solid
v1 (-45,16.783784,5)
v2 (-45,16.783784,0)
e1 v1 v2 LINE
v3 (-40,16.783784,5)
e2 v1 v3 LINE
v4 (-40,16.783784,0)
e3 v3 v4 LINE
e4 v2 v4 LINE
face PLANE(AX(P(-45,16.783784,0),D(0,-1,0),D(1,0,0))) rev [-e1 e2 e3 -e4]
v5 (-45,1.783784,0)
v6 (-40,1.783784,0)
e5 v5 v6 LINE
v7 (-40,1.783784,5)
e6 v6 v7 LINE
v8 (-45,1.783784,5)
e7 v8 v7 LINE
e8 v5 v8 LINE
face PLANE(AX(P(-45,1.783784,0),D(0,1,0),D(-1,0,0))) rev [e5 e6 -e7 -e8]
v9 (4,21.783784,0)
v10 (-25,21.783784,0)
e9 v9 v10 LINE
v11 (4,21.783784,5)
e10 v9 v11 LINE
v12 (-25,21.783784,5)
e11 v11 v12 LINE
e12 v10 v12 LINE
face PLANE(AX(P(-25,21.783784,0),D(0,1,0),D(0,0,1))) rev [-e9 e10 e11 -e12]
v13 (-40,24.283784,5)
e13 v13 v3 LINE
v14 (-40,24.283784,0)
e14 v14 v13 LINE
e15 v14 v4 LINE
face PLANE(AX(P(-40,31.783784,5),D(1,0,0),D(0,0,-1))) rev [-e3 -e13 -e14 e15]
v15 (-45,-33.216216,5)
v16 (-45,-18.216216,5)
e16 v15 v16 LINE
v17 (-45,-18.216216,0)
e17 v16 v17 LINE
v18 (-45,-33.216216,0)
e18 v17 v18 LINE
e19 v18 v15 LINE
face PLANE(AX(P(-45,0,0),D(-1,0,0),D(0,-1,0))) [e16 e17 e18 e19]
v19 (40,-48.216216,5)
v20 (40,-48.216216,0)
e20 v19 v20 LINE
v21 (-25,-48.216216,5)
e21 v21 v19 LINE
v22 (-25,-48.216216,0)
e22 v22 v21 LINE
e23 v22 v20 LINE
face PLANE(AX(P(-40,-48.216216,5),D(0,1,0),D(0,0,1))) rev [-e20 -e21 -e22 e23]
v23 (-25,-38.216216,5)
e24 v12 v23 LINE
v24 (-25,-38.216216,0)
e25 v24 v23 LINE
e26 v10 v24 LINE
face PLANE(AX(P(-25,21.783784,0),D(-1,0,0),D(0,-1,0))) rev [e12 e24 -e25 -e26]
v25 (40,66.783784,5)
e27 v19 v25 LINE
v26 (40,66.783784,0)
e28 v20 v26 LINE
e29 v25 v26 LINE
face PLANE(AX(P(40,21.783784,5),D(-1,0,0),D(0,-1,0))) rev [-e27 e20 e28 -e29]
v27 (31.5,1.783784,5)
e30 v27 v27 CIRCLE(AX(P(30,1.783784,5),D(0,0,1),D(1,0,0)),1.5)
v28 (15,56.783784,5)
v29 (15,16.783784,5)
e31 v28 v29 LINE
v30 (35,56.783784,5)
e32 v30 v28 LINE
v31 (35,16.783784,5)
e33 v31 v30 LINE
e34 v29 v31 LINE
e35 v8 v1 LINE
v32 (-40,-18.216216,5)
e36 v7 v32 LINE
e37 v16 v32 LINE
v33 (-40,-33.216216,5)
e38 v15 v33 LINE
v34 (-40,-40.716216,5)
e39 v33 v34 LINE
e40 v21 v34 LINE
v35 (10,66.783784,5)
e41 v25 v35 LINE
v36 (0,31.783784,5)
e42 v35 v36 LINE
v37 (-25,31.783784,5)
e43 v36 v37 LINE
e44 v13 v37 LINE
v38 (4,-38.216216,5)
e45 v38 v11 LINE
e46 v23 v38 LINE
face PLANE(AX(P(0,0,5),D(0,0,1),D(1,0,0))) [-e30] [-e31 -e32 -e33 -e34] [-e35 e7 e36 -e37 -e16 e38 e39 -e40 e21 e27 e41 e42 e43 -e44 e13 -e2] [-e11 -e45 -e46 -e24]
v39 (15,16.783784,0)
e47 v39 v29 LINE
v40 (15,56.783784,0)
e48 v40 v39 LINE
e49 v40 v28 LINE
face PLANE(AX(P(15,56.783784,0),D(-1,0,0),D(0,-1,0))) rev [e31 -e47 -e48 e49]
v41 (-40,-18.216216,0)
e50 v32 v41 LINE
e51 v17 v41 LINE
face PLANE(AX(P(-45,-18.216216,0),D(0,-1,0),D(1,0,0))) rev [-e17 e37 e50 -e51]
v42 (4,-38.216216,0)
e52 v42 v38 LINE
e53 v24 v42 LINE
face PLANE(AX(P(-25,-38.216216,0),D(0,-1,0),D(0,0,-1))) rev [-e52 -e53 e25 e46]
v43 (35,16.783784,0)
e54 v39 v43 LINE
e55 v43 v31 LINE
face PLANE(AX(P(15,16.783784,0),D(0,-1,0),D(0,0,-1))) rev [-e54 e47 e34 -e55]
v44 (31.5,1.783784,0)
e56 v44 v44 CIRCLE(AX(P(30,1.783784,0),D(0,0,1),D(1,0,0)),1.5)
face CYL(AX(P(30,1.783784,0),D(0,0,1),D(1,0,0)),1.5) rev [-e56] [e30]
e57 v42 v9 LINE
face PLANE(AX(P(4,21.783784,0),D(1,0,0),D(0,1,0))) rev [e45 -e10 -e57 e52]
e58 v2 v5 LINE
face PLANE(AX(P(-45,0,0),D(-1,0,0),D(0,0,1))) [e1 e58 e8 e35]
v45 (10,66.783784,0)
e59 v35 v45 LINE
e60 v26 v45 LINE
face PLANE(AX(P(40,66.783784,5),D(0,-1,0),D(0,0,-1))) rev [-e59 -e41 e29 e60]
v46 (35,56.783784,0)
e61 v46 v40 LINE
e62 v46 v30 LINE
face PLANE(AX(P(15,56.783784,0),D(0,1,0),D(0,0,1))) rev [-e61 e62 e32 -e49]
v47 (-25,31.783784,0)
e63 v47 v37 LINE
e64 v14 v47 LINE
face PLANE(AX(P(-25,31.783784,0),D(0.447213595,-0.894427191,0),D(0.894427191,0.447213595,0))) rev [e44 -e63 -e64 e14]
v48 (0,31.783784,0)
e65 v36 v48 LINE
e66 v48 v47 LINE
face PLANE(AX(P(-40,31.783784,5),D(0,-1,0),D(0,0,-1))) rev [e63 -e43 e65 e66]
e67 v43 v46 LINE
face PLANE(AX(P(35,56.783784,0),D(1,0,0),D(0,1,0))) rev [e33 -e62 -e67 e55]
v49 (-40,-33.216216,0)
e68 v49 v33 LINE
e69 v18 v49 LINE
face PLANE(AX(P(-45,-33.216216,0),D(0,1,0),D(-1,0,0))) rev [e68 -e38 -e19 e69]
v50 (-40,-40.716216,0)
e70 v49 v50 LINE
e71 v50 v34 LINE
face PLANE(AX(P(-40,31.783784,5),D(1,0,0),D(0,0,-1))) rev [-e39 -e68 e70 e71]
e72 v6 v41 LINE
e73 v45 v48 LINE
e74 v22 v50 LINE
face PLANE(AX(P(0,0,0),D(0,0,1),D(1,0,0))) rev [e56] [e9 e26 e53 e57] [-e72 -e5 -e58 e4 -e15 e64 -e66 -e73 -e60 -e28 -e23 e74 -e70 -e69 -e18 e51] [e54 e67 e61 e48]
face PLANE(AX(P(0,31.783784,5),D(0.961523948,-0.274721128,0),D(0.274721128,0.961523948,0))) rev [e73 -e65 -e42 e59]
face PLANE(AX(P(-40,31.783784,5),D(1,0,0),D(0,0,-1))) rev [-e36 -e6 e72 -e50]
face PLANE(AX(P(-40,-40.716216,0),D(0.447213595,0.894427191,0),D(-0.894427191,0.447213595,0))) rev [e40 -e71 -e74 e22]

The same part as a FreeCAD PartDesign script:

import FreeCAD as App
import Part
import Sketcher
from FreeCAD import Vector

doc = App.newDocument("Part")
params = doc.addObject("Spreadsheet::Sheet", "Params")
for row, (alias, value) in enumerate([
    ("sketch1_width", "40 mm"),
    ("sketch1_width2", "80 mm"),
    ("sketch1_width3", "30 mm"),
    ("sketch1_height", "115 mm"),
    ("pad1_length", "5 mm"),
    ("sketch2_width", "29 mm"),
    ("sketch2_width2", "20 mm"),
    ("sketch2_height", "60 mm"),
    ("sketch2_height2", "40 mm"),
    ("pocket1_length", "5 mm"),
    ("sketch3_width", "15 mm"),
    ("sketch3_height", "5 mm"),
    ("pad2_length", "5 mm"),
    ("sketch4_width", "15 mm"),
    ("sketch4_height", "7.5 mm"),
    ("pocket2_length", "5 mm"),
    ("sketch5_diameter", "3 mm"),
    ("pocket3_length", "5 mm"),
], start=1):
    params.set(f"A{row}", alias)
    params.set(f"B{row}", "=" + value)
    params.setAlias(f"B{row}", alias)

body = doc.addObject("PartDesign::Body", "Body")

sketch1 = doc.addObject("Sketcher::SketchObject", "Sketch")
body.addObject(sketch1)
sketch1.AttachmentSupport = (doc.XY_Plane, [""])
sketch1.MapMode = "FlatFace"
sketch1.addGeometry([
    Part.LineSegment(Vector(10, 67, 0), Vector(0, 32, 0)),
    Part.LineSegment(Vector(0, 32, 0), Vector(-40, 32, 0)),
    Part.LineSegment(Vector(-40, 32, 0), Vector(-40, -48, 0)),
    Part.LineSegment(Vector(-40, -48, 0), Vector(40, -48, 0)),
    Part.LineSegment(Vector(40, -48, 0), Vector(40, 67, 0)),
    Part.LineSegment(Vector(40, 67, 0), Vector(10, 67, 0)),
], False)
sketch1.addConstraint([
    Sketcher.Constraint("Coincident", 0, 2, 1, 1),
    Sketcher.Constraint("Coincident", 1, 2, 2, 1),
    Sketcher.Constraint("Coincident", 2, 2, 3, 1),
    Sketcher.Constraint("Coincident", 3, 2, 4, 1),
    Sketcher.Constraint("Coincident", 4, 2, 5, 1),
    Sketcher.Constraint("Coincident", 5, 2, 0, 1),
    Sketcher.Constraint("Horizontal", 1),
    Sketcher.Constraint("Vertical", 2),
    Sketcher.Constraint("Horizontal", 3),
    Sketcher.Constraint("Vertical", 4),
    Sketcher.Constraint("Horizontal", 5),
    Sketcher.Constraint("PointOnObject", 0, 2, -2),
    Sketcher.Constraint("Equal", 3, 2),
    Sketcher.Constraint("DistanceX", 1, 2, 1, 1, 40.0),
    Sketcher.Constraint("DistanceX", 3, 1, 3, 2, 80.0),
    Sketcher.Constraint("DistanceX", 5, 2, 5, 1, 30.0),
    Sketcher.Constraint("DistanceY", 4, 1, 4, 2, 115.0),
    Sketcher.Constraint("DistanceY", -1, 1, 0, 2, 31.783784),
])
sketch1.setExpression("Constraints[13]", "Params.sketch1_width")
sketch1.setExpression("Constraints[14]", "Params.sketch1_width2")
sketch1.setExpression("Constraints[15]", "Params.sketch1_width3")
sketch1.setExpression("Constraints[16]", "Params.sketch1_height")
pad1 = doc.addObject("PartDesign::Pad", "Pad")
body.addObject(pad1)
pad1.Profile = sketch1
pad1.setExpression("Length", "Params.pad1_length")

sketch2 = doc.addObject("Sketcher::SketchObject", "Sketch001")
body.addObject(sketch2)
sketch2.AttachmentSupport = (doc.XY_Plane, [""])
sketch2.MapMode = "FlatFace"
sketch2.AttachmentOffset = App.Placement(Vector(0, 0, 5), App.Rotation())
sketch2.addGeometry([
    Part.LineSegment(Vector(-25, 22, 0), Vector(-25, -38, 0)),
    Part.LineSegment(Vector(-25, -38, 0), Vector(4, -38, 0)),
    Part.LineSegment(Vector(4, -38, 0), Vector(4, 22, 0)),
    Part.LineSegment(Vector(4, 22, 0), Vector(-25, 22, 0)),
    Part.LineSegment(Vector(15, 57, 0), Vector(15, 17, 0)),
    Part.LineSegment(Vector(15, 17, 0), Vector(35, 17, 0)),
    Part.LineSegment(Vector(35, 17, 0), Vector(35, 57, 0)),
    Part.LineSegment(Vector(35, 57, 0), Vector(15, 57, 0)),
], False)
sketch2.addConstraint([
    Sketcher.Constraint("Coincident", 0, 2, 1, 1),
    Sketcher.Constraint("Coincident", 1, 2, 2, 1),
    Sketcher.Constraint("Coincident", 2, 2, 3, 1),
    Sketcher.Constraint("Coincident", 3, 2, 0, 1),
    Sketcher.Constraint("Coincident", 4, 2, 5, 1),
    Sketcher.Constraint("Coincident", 5, 2, 6, 1),
    Sketcher.Constraint("Coincident", 6, 2, 7, 1),
    Sketcher.Constraint("Coincident", 7, 2, 4, 1),
    Sketcher.Constraint("Vertical", 0),
    Sketcher.Constraint("Horizontal", 1),
    Sketcher.Constraint("Vertical", 2),
    Sketcher.Constraint("Horizontal", 3),
    Sketcher.Constraint("Vertical", 4),
    Sketcher.Constraint("Horizontal", 5),
    Sketcher.Constraint("Vertical", 6),
    Sketcher.Constraint("Horizontal", 7),
    Sketcher.Constraint("DistanceX", 1, 1, 1, 2, 29.0),
    Sketcher.Constraint("DistanceX", 5, 1, 5, 2, 20.0),
    Sketcher.Constraint("DistanceY", 0, 2, 0, 1, 60.0),
    Sketcher.Constraint("DistanceY", 4, 2, 4, 1, 40.0),
    Sketcher.Constraint("DistanceX", 0, 2, -1, 1, 25.0),
    Sketcher.Constraint("DistanceX", -1, 1, 4, 2, 15.0),
    Sketcher.Constraint("DistanceY", 4, 2, 2, 2, 5.0),
    Sketcher.Constraint("DistanceY", 0, 2, -1, 1, 38.216216),
])
sketch2.setExpression("Constraints[16]", "Params.sketch2_width")
sketch2.setExpression("Constraints[17]", "Params.sketch2_width2")
sketch2.setExpression("Constraints[18]", "Params.sketch2_height")
sketch2.setExpression("Constraints[19]", "Params.sketch2_height2")
pocket1 = doc.addObject("PartDesign::Pocket", "Pocket")
body.addObject(pocket1)
pocket1.Profile = sketch2
pocket1.setExpression("Length", "Params.pocket1_length")

sketch3 = doc.addObject("Sketcher::SketchObject", "Sketch002")
body.addObject(sketch3)
sketch3.AttachmentSupport = (doc.YZ_Plane, [""])
sketch3.MapMode = "FlatFace"
sketch3.AttachmentOffset = App.Placement(Vector(0, 0, -40), App.Rotation())
sketch3.addGeometry([
    Part.LineSegment(Vector(17, 0, 0), Vector(2, 0, 0)),
    Part.LineSegment(Vector(2, 0, 0), Vector(2, 5, 0)),
    Part.LineSegment(Vector(2, 5, 0), Vector(17, 5, 0)),
    Part.LineSegment(Vector(17, 5, 0), Vector(17, 0, 0)),
    Part.LineSegment(Vector(-18, 0, 0), Vector(-33, 0, 0)),
    Part.LineSegment(Vector(-33, 0, 0), Vector(-33, 5, 0)),
    Part.LineSegment(Vector(-33, 5, 0), Vector(-18, 5, 0)),
    Part.LineSegment(Vector(-18, 5, 0), Vector(-18, 0, 0)),
], False)
sketch3.addConstraint([
    Sketcher.Constraint("Coincident", 0, 2, 1, 1),
    Sketcher.Constraint("Coincident", 1, 2, 2, 1),
    Sketcher.Constraint("Coincident", 2, 2, 3, 1),
    Sketcher.Constraint("Coincident", 3, 2, 0, 1),
    Sketcher.Constraint("Coincident", 4, 2, 5, 1),
    Sketcher.Constraint("Coincident", 5, 2, 6, 1),
    Sketcher.Constraint("Coincident", 6, 2, 7, 1),
    Sketcher.Constraint("Coincident", 7, 2, 4, 1),
    Sketcher.Constraint("Horizontal", 0),
    Sketcher.Constraint("Vertical", 1),
    Sketcher.Constraint("Horizontal", 2),
    Sketcher.Constraint("Vertical", 3),
    Sketcher.Constraint("Horizontal", 4),
    Sketcher.Constraint("Vertical", 5),
    Sketcher.Constraint("Horizontal", 6),
    Sketcher.Constraint("Vertical", 7),
    Sketcher.Constraint("PointOnObject", 0, 2, -1),
    Sketcher.Constraint("PointOnObject", 4, 2, -1),
    Sketcher.Constraint("Horizontal", 2, 2, 5, 2),
    Sketcher.Constraint("Equal", 2, 4),
    Sketcher.Constraint("DistanceX", 0, 2, 0, 1, 15.0),
    Sketcher.Constraint("DistanceY", 1, 1, 1, 2, 5.0),
    Sketcher.Constraint("DistanceX", 4, 2, 0, 2, 35.0),
    Sketcher.Constraint("DistanceX", -1, 1, 0, 2, 1.783784),
])
sketch3.setExpression("Constraints[20]", "Params.sketch3_width")
sketch3.setExpression("Constraints[21]", "Params.sketch3_height")
pad2 = doc.addObject("PartDesign::Pad", "Pad001")
body.addObject(pad2)
pad2.Profile = sketch3
pad2.setExpression("Length", "Params.pad2_length")
pad2.Reversed = True

sketch4 = doc.addObject("Sketcher::SketchObject", "Sketch003")
body.addObject(sketch4)
sketch4.AttachmentSupport = (doc.XY_Plane, [""])
sketch4.MapMode = "FlatFace"
sketch4.AttachmentOffset = App.Placement(Vector(0, 0, 5), App.Rotation())
sketch4.addGeometry([
    Part.LineSegment(Vector(-25, 32, 0), Vector(-40, 32, 0)),
    Part.LineSegment(Vector(-40, 32, 0), Vector(-40, 24, 0)),
    Part.LineSegment(Vector(-40, 24, 0), Vector(-25, 32, 0)),
    Part.LineSegment(Vector(-40, -41, 0), Vector(-40, -48, 0)),
    Part.LineSegment(Vector(-40, -48, 0), Vector(-25, -48, 0)),
    Part.LineSegment(Vector(-25, -48, 0), Vector(-40, -41, 0)),
], False)
sketch4.addConstraint([
    Sketcher.Constraint("Coincident", 0, 2, 1, 1),
    Sketcher.Constraint("Coincident", 1, 2, 2, 1),
    Sketcher.Constraint("Coincident", 2, 2, 0, 1),
    Sketcher.Constraint("Coincident", 3, 2, 4, 1),
    Sketcher.Constraint("Coincident", 4, 2, 5, 1),
    Sketcher.Constraint("Coincident", 5, 2, 3, 1),
    Sketcher.Constraint("Horizontal", 0),
    Sketcher.Constraint("Vertical", 1),
    Sketcher.Constraint("Vertical", 3),
    Sketcher.Constraint("Horizontal", 4),
    Sketcher.Constraint("Vertical", 1, 2, 3, 2),
    Sketcher.Constraint("Vertical", 2, 2, 4, 2),
    Sketcher.Constraint("Equal", 1, 3),
    Sketcher.Constraint("DistanceX", 0, 2, 0, 1, 15.0),
    Sketcher.Constraint("DistanceY", 1, 2, 1, 1, 7.5),
    Sketcher.Constraint("DistanceX", 0, 2, -1, 1, 40.0),
    Sketcher.Constraint("DistanceY", 3, 2, 0, 2, 80.0),
    Sketcher.Constraint("DistanceY", -1, 1, 0, 2, 31.783784),
])
sketch4.setExpression("Constraints[13]", "Params.sketch4_width")
sketch4.setExpression("Constraints[14]", "Params.sketch4_height")
pocket2 = doc.addObject("PartDesign::Pocket", "Pocket001")
body.addObject(pocket2)
pocket2.Profile = sketch4
pocket2.setExpression("Length", "Params.pocket2_length")

sketch5 = doc.addObject("Sketcher::SketchObject", "Sketch004")
body.addObject(sketch5)
sketch5.AttachmentSupport = (doc.XY_Plane, [""])
sketch5.MapMode = "FlatFace"
sketch5.AttachmentOffset = App.Placement(Vector(0, 0, 5), App.Rotation())
sketch5.addGeometry(Part.Circle(Vector(30, 1.8, 0), Vector(0, 0, 1), 1.5), False)
sketch5.addConstraint([
    Sketcher.Constraint("Diameter", 0, 3.0),
    Sketcher.Constraint("DistanceX", -1, 1, 0, 3, 30.0),
    Sketcher.Constraint("DistanceY", -1, 1, 0, 3, 1.783784),
])
sketch5.setExpression("Constraints[0]", "Params.sketch5_diameter")
pocket3 = doc.addObject("PartDesign::Pocket", "Pocket002")
body.addObject(pocket3)
pocket3.Profile = sketch5
pocket3.setExpression("Length", "Params.pocket3_length")

doc.recompute()
